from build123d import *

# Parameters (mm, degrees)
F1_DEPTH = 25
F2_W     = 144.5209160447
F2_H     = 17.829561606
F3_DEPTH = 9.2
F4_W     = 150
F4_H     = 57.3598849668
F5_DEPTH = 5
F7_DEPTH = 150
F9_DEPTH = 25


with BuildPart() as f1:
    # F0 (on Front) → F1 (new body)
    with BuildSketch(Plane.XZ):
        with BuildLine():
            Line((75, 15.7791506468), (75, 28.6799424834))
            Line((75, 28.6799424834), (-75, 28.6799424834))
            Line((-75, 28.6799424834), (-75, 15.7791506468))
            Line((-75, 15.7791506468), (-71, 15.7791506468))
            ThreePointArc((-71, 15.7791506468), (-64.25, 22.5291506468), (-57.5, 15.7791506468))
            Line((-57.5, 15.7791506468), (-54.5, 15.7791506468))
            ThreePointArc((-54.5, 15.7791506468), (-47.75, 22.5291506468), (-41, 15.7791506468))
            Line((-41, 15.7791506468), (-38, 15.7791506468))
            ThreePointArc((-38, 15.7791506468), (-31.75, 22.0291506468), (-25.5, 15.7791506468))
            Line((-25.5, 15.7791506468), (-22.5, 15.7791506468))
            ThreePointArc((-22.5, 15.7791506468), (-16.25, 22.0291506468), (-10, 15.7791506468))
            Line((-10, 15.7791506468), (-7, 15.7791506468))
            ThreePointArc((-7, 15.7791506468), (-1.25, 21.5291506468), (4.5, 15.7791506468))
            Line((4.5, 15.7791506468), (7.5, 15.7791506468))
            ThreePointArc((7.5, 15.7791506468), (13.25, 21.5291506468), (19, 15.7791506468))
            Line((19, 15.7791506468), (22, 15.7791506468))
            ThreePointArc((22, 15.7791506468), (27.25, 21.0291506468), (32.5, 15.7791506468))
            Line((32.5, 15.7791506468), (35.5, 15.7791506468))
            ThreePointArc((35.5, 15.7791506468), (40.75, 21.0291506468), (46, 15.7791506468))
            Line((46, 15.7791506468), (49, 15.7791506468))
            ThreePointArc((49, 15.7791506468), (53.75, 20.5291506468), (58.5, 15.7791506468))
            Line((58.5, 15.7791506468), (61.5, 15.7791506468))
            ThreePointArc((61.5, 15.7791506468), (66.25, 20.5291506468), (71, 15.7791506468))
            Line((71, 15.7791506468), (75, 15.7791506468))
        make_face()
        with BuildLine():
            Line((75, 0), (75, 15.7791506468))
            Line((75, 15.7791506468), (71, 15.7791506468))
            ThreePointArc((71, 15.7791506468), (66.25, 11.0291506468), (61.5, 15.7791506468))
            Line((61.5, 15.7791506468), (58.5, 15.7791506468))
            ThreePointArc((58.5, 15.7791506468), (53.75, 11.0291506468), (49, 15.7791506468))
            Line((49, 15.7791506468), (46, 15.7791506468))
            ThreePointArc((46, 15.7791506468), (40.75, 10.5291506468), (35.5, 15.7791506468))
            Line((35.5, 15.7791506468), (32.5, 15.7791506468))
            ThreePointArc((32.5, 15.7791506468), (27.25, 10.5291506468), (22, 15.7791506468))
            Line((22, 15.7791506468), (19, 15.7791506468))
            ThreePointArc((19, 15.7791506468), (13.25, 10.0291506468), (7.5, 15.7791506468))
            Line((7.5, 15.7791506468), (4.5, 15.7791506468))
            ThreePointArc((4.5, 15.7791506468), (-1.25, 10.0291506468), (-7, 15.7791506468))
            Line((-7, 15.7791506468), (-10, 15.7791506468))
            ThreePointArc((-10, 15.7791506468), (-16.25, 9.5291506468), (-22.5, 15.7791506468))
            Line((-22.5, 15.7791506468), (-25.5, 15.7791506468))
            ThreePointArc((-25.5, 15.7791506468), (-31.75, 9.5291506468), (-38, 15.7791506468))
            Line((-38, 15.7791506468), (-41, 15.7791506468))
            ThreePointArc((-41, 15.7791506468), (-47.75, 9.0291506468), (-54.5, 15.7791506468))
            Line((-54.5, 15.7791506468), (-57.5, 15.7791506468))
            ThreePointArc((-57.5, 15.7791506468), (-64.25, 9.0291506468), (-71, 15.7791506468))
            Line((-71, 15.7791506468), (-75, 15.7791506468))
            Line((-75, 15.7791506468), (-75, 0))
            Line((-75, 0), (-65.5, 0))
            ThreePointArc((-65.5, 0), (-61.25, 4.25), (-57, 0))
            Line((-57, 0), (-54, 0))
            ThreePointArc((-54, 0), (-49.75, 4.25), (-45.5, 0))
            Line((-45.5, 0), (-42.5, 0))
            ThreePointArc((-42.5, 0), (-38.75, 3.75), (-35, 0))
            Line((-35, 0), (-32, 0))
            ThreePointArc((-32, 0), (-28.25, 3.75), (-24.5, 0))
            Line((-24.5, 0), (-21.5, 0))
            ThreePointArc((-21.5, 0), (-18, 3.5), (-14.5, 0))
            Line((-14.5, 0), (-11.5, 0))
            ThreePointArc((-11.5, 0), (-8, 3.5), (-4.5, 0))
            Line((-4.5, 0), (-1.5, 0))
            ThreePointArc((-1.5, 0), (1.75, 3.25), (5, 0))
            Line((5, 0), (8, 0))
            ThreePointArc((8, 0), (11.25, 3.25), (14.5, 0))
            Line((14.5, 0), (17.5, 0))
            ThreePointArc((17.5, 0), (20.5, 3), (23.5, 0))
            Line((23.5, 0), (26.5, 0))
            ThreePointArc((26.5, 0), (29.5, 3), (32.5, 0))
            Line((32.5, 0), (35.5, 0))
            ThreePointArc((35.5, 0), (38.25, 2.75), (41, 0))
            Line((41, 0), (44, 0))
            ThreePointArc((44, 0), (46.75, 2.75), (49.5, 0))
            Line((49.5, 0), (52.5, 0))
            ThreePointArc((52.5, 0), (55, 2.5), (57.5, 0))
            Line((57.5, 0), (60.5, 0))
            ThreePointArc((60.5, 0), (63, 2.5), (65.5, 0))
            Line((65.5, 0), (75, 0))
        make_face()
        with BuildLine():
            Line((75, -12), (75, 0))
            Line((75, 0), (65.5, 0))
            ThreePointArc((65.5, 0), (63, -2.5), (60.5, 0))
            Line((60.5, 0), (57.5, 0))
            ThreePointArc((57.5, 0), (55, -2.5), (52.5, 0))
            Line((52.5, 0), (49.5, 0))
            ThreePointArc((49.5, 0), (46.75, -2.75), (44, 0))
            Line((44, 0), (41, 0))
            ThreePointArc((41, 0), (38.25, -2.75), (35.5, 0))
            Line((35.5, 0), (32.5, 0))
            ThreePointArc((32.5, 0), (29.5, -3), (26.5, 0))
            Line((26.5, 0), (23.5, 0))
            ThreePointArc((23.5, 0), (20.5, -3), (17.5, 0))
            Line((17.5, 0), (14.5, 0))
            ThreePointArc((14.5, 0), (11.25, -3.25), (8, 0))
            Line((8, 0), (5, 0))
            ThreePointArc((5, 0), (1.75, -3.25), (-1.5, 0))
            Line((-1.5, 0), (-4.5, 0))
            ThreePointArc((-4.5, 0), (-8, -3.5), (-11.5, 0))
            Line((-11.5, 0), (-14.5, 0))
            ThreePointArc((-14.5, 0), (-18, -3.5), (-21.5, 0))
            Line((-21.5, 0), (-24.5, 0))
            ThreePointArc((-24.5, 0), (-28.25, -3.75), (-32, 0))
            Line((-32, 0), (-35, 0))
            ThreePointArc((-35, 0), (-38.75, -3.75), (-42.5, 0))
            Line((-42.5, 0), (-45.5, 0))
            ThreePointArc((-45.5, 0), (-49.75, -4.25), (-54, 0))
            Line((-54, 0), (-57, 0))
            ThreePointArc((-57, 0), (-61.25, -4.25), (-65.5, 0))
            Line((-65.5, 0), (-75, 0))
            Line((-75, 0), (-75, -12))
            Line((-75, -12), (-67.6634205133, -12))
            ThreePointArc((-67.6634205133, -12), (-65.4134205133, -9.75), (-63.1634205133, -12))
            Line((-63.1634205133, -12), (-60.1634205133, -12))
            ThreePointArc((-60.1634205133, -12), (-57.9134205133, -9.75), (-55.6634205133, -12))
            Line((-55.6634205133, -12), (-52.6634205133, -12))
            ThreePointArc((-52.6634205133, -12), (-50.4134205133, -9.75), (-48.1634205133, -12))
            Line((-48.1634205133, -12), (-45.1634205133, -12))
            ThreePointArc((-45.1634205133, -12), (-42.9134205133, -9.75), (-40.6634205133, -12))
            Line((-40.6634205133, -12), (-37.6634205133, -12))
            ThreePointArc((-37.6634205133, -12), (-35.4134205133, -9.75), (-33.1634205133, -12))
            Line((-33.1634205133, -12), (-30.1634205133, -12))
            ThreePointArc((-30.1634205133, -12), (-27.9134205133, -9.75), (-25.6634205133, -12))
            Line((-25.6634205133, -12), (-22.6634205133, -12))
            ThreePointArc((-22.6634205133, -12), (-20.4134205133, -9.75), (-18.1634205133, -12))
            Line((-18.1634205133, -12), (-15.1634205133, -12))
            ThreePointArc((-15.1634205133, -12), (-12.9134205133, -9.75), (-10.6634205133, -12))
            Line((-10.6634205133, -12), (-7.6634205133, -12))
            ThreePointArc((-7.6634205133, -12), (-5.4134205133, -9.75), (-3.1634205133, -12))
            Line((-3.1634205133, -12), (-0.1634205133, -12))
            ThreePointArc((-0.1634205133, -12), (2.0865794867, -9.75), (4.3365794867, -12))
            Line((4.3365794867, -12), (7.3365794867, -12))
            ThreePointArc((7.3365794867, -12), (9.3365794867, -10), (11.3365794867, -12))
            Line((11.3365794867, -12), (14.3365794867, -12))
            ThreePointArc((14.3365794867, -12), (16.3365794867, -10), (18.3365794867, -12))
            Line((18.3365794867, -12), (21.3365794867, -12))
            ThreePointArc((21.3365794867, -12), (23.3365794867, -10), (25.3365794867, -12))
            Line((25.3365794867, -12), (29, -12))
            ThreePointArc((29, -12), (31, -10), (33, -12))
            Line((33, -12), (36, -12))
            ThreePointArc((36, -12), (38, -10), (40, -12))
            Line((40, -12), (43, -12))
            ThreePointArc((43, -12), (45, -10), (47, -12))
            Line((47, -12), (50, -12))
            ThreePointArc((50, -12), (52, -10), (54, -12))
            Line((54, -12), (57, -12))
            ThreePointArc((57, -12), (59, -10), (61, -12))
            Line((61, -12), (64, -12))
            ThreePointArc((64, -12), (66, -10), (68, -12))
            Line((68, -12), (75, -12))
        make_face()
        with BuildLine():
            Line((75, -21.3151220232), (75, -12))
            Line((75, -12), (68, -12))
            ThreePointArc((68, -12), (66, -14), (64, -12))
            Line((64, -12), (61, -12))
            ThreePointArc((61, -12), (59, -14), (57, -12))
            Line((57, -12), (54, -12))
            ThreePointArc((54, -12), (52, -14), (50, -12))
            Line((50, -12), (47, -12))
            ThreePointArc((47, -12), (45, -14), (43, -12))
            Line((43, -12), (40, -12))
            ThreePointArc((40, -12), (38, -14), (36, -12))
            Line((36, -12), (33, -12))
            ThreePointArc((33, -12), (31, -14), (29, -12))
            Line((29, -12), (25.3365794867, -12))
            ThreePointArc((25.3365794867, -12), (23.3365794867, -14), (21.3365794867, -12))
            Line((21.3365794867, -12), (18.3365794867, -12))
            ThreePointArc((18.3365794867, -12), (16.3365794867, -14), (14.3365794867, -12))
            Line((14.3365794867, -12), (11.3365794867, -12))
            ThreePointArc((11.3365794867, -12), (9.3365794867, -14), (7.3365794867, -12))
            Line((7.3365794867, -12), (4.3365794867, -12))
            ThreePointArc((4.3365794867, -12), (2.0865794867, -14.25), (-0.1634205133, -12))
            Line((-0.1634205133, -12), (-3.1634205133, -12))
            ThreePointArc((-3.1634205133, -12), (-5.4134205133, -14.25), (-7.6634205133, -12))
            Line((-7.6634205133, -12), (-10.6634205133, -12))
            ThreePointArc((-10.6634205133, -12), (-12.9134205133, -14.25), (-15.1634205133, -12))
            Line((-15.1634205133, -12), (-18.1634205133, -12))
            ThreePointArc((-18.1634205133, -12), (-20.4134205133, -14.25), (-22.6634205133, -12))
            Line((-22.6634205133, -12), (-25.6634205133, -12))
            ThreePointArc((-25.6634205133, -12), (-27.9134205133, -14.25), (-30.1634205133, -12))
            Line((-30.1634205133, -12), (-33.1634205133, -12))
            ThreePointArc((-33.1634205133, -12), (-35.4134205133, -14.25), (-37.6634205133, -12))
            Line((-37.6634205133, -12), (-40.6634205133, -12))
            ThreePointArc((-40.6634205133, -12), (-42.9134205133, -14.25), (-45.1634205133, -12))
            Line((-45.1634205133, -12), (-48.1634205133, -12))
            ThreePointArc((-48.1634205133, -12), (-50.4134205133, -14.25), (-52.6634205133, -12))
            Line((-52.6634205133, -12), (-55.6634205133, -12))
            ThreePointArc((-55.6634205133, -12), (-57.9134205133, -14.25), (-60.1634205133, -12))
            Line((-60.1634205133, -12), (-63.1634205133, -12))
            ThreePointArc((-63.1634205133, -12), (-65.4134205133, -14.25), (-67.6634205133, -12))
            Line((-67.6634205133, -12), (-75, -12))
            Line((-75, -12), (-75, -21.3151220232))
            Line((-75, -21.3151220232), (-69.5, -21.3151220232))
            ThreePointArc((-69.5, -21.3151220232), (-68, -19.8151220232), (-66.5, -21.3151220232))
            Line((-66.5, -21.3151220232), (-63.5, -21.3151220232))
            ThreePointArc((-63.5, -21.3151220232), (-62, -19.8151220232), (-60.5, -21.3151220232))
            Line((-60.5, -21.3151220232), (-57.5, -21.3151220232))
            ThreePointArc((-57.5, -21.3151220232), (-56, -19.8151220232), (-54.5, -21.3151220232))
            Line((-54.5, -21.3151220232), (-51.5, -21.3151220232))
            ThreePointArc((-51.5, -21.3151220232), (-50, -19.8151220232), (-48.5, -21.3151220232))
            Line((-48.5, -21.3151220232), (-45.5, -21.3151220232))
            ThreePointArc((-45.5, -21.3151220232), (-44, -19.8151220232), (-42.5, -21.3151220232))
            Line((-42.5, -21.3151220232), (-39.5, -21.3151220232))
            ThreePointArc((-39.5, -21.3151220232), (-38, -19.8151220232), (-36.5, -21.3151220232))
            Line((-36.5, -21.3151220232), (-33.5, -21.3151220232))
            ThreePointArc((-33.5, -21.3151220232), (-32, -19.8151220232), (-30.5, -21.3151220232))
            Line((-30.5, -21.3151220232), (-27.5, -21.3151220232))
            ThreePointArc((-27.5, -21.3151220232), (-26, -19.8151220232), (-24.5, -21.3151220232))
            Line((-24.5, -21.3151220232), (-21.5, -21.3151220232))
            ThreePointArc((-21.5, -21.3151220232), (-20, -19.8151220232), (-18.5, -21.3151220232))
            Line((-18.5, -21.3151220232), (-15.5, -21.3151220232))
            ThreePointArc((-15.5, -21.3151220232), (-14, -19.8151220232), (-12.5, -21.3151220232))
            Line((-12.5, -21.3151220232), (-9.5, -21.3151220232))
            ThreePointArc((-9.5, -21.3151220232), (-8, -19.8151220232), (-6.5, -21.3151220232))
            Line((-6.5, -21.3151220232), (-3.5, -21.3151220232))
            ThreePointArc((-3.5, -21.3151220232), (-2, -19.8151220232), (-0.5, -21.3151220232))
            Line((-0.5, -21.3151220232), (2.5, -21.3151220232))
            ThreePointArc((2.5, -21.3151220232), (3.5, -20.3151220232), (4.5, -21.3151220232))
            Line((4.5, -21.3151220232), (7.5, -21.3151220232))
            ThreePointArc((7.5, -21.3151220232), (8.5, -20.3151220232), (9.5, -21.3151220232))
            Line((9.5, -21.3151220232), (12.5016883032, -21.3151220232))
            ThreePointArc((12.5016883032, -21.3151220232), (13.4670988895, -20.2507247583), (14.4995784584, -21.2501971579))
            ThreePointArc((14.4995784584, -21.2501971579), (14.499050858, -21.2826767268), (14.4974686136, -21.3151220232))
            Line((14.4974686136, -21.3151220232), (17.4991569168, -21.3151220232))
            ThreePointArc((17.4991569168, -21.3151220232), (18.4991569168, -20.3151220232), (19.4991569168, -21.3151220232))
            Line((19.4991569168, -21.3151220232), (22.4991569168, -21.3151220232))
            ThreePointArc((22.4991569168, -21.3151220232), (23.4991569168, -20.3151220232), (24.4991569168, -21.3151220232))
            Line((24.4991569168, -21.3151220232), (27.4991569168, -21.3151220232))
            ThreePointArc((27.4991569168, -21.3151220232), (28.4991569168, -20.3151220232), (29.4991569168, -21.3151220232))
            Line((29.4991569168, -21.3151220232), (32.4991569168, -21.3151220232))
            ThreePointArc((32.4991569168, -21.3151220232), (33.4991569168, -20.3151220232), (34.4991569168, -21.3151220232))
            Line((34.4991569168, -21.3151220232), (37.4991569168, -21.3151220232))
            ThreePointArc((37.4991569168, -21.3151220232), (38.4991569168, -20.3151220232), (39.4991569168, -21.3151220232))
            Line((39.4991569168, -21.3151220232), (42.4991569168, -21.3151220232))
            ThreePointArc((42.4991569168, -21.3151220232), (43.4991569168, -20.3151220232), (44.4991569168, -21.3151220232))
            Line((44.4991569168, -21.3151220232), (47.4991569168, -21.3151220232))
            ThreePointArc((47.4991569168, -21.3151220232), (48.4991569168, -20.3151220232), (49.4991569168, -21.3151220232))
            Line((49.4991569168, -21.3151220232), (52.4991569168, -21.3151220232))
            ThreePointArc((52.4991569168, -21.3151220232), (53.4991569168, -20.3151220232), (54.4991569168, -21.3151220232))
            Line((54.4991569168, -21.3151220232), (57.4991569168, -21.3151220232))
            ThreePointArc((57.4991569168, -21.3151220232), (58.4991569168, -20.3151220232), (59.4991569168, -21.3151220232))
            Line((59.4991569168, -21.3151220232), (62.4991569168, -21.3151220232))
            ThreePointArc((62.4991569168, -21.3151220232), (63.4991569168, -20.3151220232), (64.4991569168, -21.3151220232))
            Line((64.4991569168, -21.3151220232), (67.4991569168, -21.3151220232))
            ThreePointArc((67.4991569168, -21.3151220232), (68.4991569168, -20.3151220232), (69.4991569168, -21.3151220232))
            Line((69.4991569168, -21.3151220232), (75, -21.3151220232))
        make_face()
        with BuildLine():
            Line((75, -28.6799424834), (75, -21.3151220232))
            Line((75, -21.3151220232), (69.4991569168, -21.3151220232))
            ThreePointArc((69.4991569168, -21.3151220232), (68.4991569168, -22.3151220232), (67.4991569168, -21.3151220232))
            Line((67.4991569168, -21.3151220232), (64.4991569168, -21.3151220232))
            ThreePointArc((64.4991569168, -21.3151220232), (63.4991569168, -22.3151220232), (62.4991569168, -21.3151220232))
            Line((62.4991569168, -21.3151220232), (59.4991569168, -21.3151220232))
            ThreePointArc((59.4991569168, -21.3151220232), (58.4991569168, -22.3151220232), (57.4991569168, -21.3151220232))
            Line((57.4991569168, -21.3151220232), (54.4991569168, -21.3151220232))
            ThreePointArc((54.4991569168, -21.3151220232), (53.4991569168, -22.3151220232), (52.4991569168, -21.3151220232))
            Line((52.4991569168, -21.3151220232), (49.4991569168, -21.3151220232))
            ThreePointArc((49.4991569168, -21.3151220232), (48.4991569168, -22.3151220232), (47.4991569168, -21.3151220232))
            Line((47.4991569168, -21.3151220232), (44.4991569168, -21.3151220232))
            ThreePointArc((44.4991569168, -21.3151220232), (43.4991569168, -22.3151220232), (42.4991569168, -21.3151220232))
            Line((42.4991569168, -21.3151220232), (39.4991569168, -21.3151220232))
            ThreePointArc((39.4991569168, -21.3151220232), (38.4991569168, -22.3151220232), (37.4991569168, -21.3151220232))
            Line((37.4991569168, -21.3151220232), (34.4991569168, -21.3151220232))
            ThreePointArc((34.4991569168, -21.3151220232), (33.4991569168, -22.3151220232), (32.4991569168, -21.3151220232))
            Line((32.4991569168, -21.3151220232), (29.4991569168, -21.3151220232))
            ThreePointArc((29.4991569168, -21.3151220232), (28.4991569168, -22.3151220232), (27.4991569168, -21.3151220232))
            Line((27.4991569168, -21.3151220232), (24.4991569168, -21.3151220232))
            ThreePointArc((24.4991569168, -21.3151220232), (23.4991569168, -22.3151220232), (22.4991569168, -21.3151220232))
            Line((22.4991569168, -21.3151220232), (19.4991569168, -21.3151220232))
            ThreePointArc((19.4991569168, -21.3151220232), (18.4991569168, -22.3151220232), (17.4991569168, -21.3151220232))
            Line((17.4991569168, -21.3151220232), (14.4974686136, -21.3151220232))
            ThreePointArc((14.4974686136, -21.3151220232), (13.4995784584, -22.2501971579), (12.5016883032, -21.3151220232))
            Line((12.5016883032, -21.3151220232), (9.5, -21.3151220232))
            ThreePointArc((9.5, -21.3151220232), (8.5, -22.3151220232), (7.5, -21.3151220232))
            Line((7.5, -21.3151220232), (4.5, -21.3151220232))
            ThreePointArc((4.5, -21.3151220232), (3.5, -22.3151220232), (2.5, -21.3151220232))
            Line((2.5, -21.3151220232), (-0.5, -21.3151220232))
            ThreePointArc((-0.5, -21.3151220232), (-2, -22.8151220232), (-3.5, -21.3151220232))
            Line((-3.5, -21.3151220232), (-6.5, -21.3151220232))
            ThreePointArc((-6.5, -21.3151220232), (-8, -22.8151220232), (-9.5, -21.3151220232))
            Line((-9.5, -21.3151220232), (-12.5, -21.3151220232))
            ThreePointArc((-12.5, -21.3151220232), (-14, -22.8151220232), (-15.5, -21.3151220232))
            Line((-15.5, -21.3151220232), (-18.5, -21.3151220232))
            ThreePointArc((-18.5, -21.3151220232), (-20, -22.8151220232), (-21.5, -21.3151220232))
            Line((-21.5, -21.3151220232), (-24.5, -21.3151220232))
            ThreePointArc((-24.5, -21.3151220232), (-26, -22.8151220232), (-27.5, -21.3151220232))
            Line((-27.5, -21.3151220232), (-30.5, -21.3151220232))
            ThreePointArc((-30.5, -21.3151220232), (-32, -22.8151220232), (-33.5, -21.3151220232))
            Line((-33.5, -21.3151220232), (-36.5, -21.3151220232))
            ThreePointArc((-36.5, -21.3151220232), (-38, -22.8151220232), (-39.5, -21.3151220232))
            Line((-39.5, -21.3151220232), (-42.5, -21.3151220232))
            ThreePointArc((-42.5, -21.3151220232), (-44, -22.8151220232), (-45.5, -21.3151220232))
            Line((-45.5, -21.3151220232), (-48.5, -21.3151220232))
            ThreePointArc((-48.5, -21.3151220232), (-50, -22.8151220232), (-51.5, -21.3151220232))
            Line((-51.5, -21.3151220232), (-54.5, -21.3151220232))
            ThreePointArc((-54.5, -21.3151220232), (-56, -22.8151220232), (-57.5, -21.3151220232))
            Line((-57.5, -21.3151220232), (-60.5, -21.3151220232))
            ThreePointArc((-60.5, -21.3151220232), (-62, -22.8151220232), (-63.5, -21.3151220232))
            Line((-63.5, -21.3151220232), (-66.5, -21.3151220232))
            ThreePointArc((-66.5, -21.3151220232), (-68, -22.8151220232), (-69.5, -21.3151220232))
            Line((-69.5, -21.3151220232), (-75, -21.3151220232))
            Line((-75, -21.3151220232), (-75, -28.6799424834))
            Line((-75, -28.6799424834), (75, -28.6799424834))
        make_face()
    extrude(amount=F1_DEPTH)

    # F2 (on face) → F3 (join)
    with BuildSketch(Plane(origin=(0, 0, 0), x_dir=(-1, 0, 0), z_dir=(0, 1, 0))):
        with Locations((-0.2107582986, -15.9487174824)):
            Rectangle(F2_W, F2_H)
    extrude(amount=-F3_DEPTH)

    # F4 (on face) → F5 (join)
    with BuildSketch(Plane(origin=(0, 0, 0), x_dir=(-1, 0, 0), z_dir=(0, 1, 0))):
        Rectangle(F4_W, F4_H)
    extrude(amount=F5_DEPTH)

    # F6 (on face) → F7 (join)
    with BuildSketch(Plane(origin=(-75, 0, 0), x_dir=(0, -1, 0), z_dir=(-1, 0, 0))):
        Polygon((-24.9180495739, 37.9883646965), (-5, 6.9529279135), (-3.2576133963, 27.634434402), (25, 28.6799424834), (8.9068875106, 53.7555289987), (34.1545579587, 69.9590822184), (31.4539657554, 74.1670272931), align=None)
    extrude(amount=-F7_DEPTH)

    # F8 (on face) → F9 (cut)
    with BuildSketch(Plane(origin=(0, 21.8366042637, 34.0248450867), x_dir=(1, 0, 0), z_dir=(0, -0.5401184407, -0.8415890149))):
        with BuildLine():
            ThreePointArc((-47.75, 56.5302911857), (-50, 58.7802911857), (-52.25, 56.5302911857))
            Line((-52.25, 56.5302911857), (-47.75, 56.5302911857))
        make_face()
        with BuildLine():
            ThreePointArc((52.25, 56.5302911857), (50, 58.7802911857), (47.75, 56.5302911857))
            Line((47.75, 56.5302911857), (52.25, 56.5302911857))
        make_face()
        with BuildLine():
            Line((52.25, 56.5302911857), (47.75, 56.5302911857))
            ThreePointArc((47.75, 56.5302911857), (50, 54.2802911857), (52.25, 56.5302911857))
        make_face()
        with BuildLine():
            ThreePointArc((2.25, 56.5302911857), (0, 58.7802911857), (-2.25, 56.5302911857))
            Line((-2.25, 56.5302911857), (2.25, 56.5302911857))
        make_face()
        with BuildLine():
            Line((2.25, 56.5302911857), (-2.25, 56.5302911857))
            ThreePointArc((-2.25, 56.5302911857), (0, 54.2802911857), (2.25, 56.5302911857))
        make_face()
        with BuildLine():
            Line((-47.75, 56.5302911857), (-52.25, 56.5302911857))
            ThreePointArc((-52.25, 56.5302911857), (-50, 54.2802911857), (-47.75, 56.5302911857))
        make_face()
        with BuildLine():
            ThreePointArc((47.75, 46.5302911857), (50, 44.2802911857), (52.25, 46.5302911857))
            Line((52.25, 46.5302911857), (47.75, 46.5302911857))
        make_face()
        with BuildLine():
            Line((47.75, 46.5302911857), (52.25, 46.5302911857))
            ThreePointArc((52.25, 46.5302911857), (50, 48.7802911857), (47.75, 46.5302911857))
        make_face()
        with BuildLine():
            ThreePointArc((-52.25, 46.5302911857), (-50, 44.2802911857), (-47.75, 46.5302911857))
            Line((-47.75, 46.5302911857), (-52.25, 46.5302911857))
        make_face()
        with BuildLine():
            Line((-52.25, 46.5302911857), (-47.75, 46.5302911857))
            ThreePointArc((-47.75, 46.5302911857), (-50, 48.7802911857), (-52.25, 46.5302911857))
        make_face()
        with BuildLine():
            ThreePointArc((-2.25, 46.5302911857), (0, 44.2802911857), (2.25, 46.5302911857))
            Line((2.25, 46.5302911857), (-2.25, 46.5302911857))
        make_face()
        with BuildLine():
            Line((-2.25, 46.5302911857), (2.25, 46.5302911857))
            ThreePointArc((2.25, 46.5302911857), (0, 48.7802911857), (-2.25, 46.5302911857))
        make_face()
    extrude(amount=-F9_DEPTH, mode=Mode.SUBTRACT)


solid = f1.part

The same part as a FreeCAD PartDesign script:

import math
import FreeCAD as App
import Part
import Sketcher
Q = App.Units.Quantity

doc = App.newDocument("Part")
params = doc.addObject("Spreadsheet::Sheet", "Params")
for row, (alias, value) in enumerate([
    ("sketch1_diameter", "3 mm"),
    ("sketch1_diameter2", "2 mm"),
    ("sketch1_diameter3", "4 mm"),
    ("sketch1_diameter4", "7 mm"),
    ("sketch1_diameter5", "6 mm"),
    ("pad1_length", "25 mm"),
    ("pad2_length", "9.2 mm"),
    ("sketch3_width", "150 mm"),
    ("pad3_length", "5 mm"),
    ("sketch4_length", "30 mm"),
    ("sketch4_length2", "5 mm"),
    ("pad4_length", "150 mm"),
    ("sketch5_diameter", "4.5 mm"),
    ("pocket1_length", "25 mm"),
], start=1):
    params.set(f"A{row}", alias)
    params.set(f"B{row}", "=" + value)
    params.setAlias(f"B{row}", alias)

body = doc.addObject("PartDesign::Body", "Body")

sketch1 = body.newObject("Sketcher::SketchObject", "Sketch")
sketch1.AttachmentSupport = (doc.getObject("XZ_Plane"), [""])
sketch1.MapMode = "FlatFace"
sketch1.addGeometry([
    Part.LineSegment(App.Vector(75, 28.679942, 0), App.Vector(-75, 28.679942, 0)),
    Part.LineSegment(App.Vector(-75, 28.679942, 0), App.Vector(-75, -28.679942, 0)),
    Part.LineSegment(App.Vector(-75, -28.679942, 0), App.Vector(75, -28.679942, 0)),
    Part.LineSegment(App.Vector(75, -28.679942, 0), App.Vector(75, 28.679942, 0)),
    Part.Circle(App.Vector(-68, -21.315122, 0), App.Vector(0, 0, 1), 1.5),
    Part.Circle(App.Vector(-62, -21.315122, 0), App.Vector(0, 0, 1), 1.5),
    Part.Circle(App.Vector(-56, -21.315122, 0), App.Vector(0, 0, 1), 1.5),
    Part.Circle(App.Vector(-50, -21.315122, 0), App.Vector(0, 0, 1), 1.5),
    Part.Circle(App.Vector(-44, -21.315122, 0), App.Vector(0, 0, 1), 1.5),
    Part.Circle(App.Vector(-38, -21.315122, 0), App.Vector(0, 0, 1), 1.5),
    Part.Circle(App.Vector(-32, -21.315122, 0), App.Vector(0, 0, 1), 1.5),
    Part.Circle(App.Vector(-26, -21.315122, 0), App.Vector(0, 0, 1), 1.5),
    Part.Circle(App.Vector(-20, -21.315122, 0), App.Vector(0, 0, 1), 1.5),
    Part.Circle(App.Vector(-14, -21.315122, 0), App.Vector(0, 0, 1), 1.5),
    Part.Circle(App.Vector(-8, -21.315122, 0), App.Vector(0, 0, 1), 1.5),
    Part.Circle(App.Vector(-2, -21.315122, 0), App.Vector(0, 0, 1), 1.5),
    Part.Circle(App.Vector(3.5, -21.315122, 0), App.Vector(0, 0, 1), 1),
    Part.Circle(App.Vector(8.5, -21.315122, 0), App.Vector(0, 0, 1), 1),
    Part.ArcOfCircle(Part.Circle(App.Vector(13.499578, -21.250197, 0), App.Vector(0, 0, 1), 1), math.radians(0), math.radians(183.722539)),
    Part.ArcOfCircle(Part.Circle(App.Vector(13.499578, -21.250197, 0), App.Vector(0, 0, 1), 1), math.radians(-3.722539), math.radians(0)),
    Part.ArcOfCircle(Part.Circle(App.Vector(13.499578, -21.250197, 0), App.Vector(0, 0, 1), 1), math.radians(-176.277461), math.radians(-3.722539)),
    Part.Circle(App.Vector(18.499157, -21.315122, 0), App.Vector(0, 0, 1), 1),
    Part.Circle(App.Vector(23.499157, -21.315122, 0), App.Vector(0, 0, 1), 1),
    Part.Circle(App.Vector(28.499157, -21.315122, 0), App.Vector(0, 0, 1), 1),
    Part.Circle(App.Vector(33.499157, -21.315122, 0), App.Vector(0, 0, 1), 1),
    Part.Circle(App.Vector(38.499157, -21.315122, 0), App.Vector(0, 0, 1), 1),
    Part.Circle(App.Vector(43.499157, -21.315122, 0), App.Vector(0, 0, 1), 1),
    Part.Circle(App.Vector(48.499157, -21.315122, 0), App.Vector(0, 0, 1), 1),
    Part.Circle(App.Vector(53.499157, -21.315122, 0), App.Vector(0, 0, 1), 1),
    Part.Circle(App.Vector(58.499157, -21.315122, 0), App.Vector(0, 0, 1), 1),
    Part.Circle(App.Vector(63.499157, -21.315122, 0), App.Vector(0, 0, 1), 1),
    Part.Circle(App.Vector(68.499157, -21.315122, 0), App.Vector(0, 0, 1), 1),
    Part.Circle(App.Vector(-65.413421, -12, 0), App.Vector(0, 0, 1), 2.25),
    Part.Circle(App.Vector(-57.913421, -12, 0), App.Vector(0, 0, 1), 2.25),
    Part.Circle(App.Vector(-50.413421, -12, 0), App.Vector(0, 0, 1), 2.25),
    Part.Circle(App.Vector(-42.913421, -12, 0), App.Vector(0, 0, 1), 2.25),
    Part.Circle(App.Vector(-35.413421, -12, 0), App.Vector(0, 0, 1), 2.25),
    Part.Circle(App.Vector(-27.913421, -12, 0), App.Vector(0, 0, 1), 2.25),
    Part.Circle(App.Vector(-20.413421, -12, 0), App.Vector(0, 0, 1), 2.25),
    Part.Circle(App.Vector(-12.913421, -12, 0), App.Vector(0, 0, 1), 2.25),
    Part.Circle(App.Vector(-5.413421, -12, 0), App.Vector(0, 0, 1), 2.25),
    Part.Circle(App.Vector(2.086579, -12, 0), App.Vector(0, 0, 1), 2.25),
    Part.Circle(App.Vector(9.336579, -12, 0), App.Vector(0, 0, 1), 2),
    Part.Circle(App.Vector(16.336579, -12, 0), App.Vector(0, 0, 1), 2),
    Part.Circle(App.Vector(23.336579, -12, 0), App.Vector(0, 0, 1), 2),
    Part.Circle(App.Vector(31, -12, 0), App.Vector(0, 0, 1), 2),
    Part.Circle(App.Vector(38, -12, 0), App.Vector(0, 0, 1), 2),
    Part.Circle(App.Vector(45, -12, 0), App.Vector(0, 0, 1), 2),
    Part.Circle(App.Vector(52, -12, 0), App.Vector(0, 0, 1), 2),
    Part.Circle(App.Vector(59, -12, 0), App.Vector(0, 0, 1), 2),
    Part.Circle(App.Vector(66, -12, 0), App.Vector(0, 0, 1), 2),
    Part.Circle(App.Vector(-61.25, 0, 0), App.Vector(0, 0, 1), 4.25),
    Part.Circle(App.Vector(-49.75, 0, 0), App.Vector(0, 0, 1), 4.25),
    Part.Circle(App.Vector(-38.75, 0, 0), App.Vector(0, 0, 1), 3.75),
    Part.Circle(App.Vector(-28.25, 0, 0), App.Vector(0, 0, 1), 3.75),
    Part.Circle(App.Vector(-18, 0, 0), App.Vector(0, 0, 1), 3.5),
    Part.Circle(App.Vector(-8, 0, 0), App.Vector(0, 0, 1), 3.5),
    Part.Circle(App.Vector(1.75, 0, 0), App.Vector(0, 0, 1), 3.25),
    Part.Circle(App.Vector(11.25, 0, 0), App.Vector(0, 0, 1), 3.25),
    Part.Circle(App.Vector(20.5, 0, 0), App.Vector(0, 0, 1), 3),
    Part.Circle(App.Vector(29.5, 0, 0), App.Vector(0, 0, 1), 3),
    Part.Circle(App.Vector(38.25, 0, 0), App.Vector(0, 0, 1), 2.75),
    Part.Circle(App.Vector(46.75, 0, 0), App.Vector(0, 0, 1), 2.75),
    Part.Circle(App.Vector(55, 0, 0), App.Vector(0, 0, 1), 2.5),
    Part.Circle(App.Vector(63, 0, 0), App.Vector(0, 0, 1), 2.5),
    Part.Circle(App.Vector(-64.25, 15.779151, 0), App.Vector(0, 0, 1), 6.75),
    Part.Circle(App.Vector(-47.75, 15.779151, 0), App.Vector(0, 0, 1), 6.75),
    Part.Circle(App.Vector(-31.75, 15.779151, 0), App.Vector(0, 0, 1), 6.25),
    Part.Circle(App.Vector(-16.25, 15.779151, 0), App.Vector(0, 0, 1), 6.25),
    Part.Circle(App.Vector(-1.25, 15.779151, 0), App.Vector(0, 0, 1), 5.75),
    Part.Circle(App.Vector(13.25, 15.779151, 0), App.Vector(0, 0, 1), 5.75),
    Part.Circle(App.Vector(27.25, 15.779151, 0), App.Vector(0, 0, 1), 5.25),
    Part.Circle(App.Vector(40.75, 15.779151, 0), App.Vector(0, 0, 1), 5.25),
    Part.Circle(App.Vector(53.75, 15.779151, 0), App.Vector(0, 0, 1), 4.75),
    Part.Circle(App.Vector(66.25, 15.779151, 0), App.Vector(0, 0, 1), 4.75),
], False)
sketch1.addConstraint([
    Sketcher.Constraint("Coincident", 0, 2, 1, 1),
    Sketcher.Constraint("Coincident", 1, 2, 2, 1),
    Sketcher.Constraint("Coincident", 2, 2, 3, 1),
    Sketcher.Constraint("Coincident", 3, 2, 0, 1),
    Sketcher.Constraint("Tangent", 18, 1, 19, 2),
    Sketcher.Constraint("Tangent", 19, 1, 20, 2),
    Sketcher.Constraint("Tangent", 20, 1, 18, 2),
    Sketcher.Constraint("Horizontal", 0),
    Sketcher.Constraint("Vertical", 1),
    Sketcher.Constraint("Horizontal", 2),
    Sketcher.Constraint("Vertical", 3),
    Sketcher.Constraint("Equal", 4, 5),
    Sketcher.Constraint("Equal", 5, 6),
    Sketcher.Constraint("Equal", 6, 7),
    Sketcher.Constraint("Equal", 7, 8),
    Sketcher.Constraint("Equal", 8, 9),
    Sketcher.Constraint("Equal", 9, 10),
    Sketcher.Constraint("Equal", 10, 11),
    Sketcher.Constraint("Equal", 11, 12),
    Sketcher.Constraint("Equal", 12, 13),
    Sketcher.Constraint("Equal", 13, 14),
    Sketcher.Constraint("Equal", 14, 15),
    Sketcher.Constraint("Equal", 16, 17),
    Sketcher.Constraint("Equal", 17, 18),
    Sketcher.Constraint("Equal", 20, 21),
    Sketcher.Constraint("Equal", 21, 22),
    Sketcher.Constraint("Equal", 22, 23),
    Sketcher.Constraint("Equal", 23, 24),
    Sketcher.Constraint("Equal", 24, 25),
    Sketcher.Constraint("Equal", 25, 26),
    Sketcher.Constraint("Equal", 26, 27),
    Sketcher.Constraint("Equal", 27, 28),
    Sketcher.Constraint("Equal", 28, 29),
    Sketcher.Constraint("Equal", 29, 30),
    Sketcher.Constraint("Equal", 30, 31),
    Sketcher.Constraint("Equal", 32, 33),
    Sketcher.Constraint("Equal", 33, 34),
    Sketcher.Constraint("Equal", 34, 35),
    Sketcher.Constraint("Equal", 35, 36),
    Sketcher.Constraint("Equal", 36, 37),
    Sketcher.Constraint("Equal", 37, 38),
    Sketcher.Constraint("Equal", 38, 39),
    Sketcher.Constraint("Equal", 39, 40),
    Sketcher.Constraint("Equal", 40, 41),
    Sketcher.Constraint("Equal", 42, 43),
    Sketcher.Constraint("Equal", 43, 44),
    Sketcher.Constraint("Equal", 44, 45),
    Sketcher.Constraint("Equal", 45, 46),
    Sketcher.Constraint("Equal", 46, 47),
    Sketcher.Constraint("Equal", 47, 48),
    Sketcher.Constraint("Equal", 48, 49),
    Sketcher.Constraint("Equal", 49, 50),
    Sketcher.Constraint("Equal", 51, 52),
    Sketcher.Constraint("Equal", 53, 54),
    Sketcher.Constraint("Equal", 55, 56),
    Sketcher.Constraint("Equal", 57, 58),
    Sketcher.Constraint("Equal", 59, 60),
    Sketcher.Constraint("Equal", 61, 62),
    Sketcher.Constraint("Equal", 63, 64),
    Sketcher.Constraint("Equal", 65, 66),
    Sketcher.Constraint("Equal", 67, 68),
    Sketcher.Constraint("Equal", 69, 70),
    Sketcher.Constraint("Equal", 71, 72),
    Sketcher.Constraint("Equal", 73, 74),
    Sketcher.Constraint("Symmetric", 0, 2, 2, 2, -1, 1),
    Sketcher.Constraint("PointOnObject", 51, 3, -1),
    Sketcher.Constraint("PointOnObject", 52, 3, -1),
    Sketcher.Constraint("PointOnObject", 53, 3, -1),
    Sketcher.Constraint("PointOnObject", 54, 3, -1),
    Sketcher.Constraint("PointOnObject", 55, 3, -1),
    Sketcher.Constraint("PointOnObject", 56, 3, -1),
    Sketcher.Constraint("PointOnObject", 57, 3, -1),
    Sketcher.Constraint("PointOnObject", 58, 3, -1),
    Sketcher.Constraint("PointOnObject", 59, 3, -1),
    Sketcher.Constraint("PointOnObject", 60, 3, -1),
    Sketcher.Constraint("PointOnObject", 61, 3, -1),
    Sketcher.Constraint("PointOnObject", 62, 3, -1),
    Sketcher.Constraint("PointOnObject", 63, 3, -1),
    Sketcher.Constraint("PointOnObject", 64, 3, -1),
    Sketcher.Constraint("Horizontal", 4, 3, 5, 3),
    Sketcher.Constraint("Horizontal", 5, 3, 6, 3),
    Sketcher.Constraint("Horizontal", 6, 3, 7, 3),
    Sketcher.Constraint("Horizontal", 7, 3, 8, 3),
    Sketcher.Constraint("Horizontal", 8, 3, 9, 3),
    Sketcher.Constraint("Horizontal", 9, 3, 10, 3),
    Sketcher.Constraint("Horizontal", 10, 3, 11, 3),
    Sketcher.Constraint("Horizontal", 11, 3, 12, 3),
    Sketcher.Constraint("Horizontal", 12, 3, 13, 3),
    Sketcher.Constraint("Horizontal", 13, 3, 14, 3),
    Sketcher.Constraint("Horizontal", 14, 3, 15, 3),
    Sketcher.Constraint("Horizontal", 15, 3, 16, 3),
    Sketcher.Constraint("Horizontal", 16, 3, 17, 3),
    Sketcher.Constraint("Horizontal", 17, 3, 21, 3),
    Sketcher.Constraint("Horizontal", 21, 3, 22, 3),
    Sketcher.Constraint("Horizontal", 22, 3, 23, 3),
    Sketcher.Constraint("Horizontal", 23, 3, 24, 3),
    Sketcher.Constraint("Horizontal", 24, 3, 25, 3),
    Sketcher.Constraint("Horizontal", 25, 3, 26, 3),
    Sketcher.Constraint("Horizontal", 26, 3, 27, 3),
    Sketcher.Constraint("Horizontal", 27, 3, 28, 3),
    Sketcher.Constraint("Horizontal", 28, 3, 29, 3),
    Sketcher.Constraint("Horizontal", 29, 3, 30, 3),
    Sketcher.Constraint("Horizontal", 30, 3, 31, 3),
    Sketcher.Constraint("Horizontal", 32, 3, 33, 3),
    Sketcher.Constraint("Horizontal", 33, 3, 34, 3),
    Sketcher.Constraint("Horizontal", 34, 3, 35, 3),
    Sketcher.Constraint("Horizontal", 35, 3, 36, 3),
    Sketcher.Constraint("Horizontal", 36, 3, 37, 3),
    Sketcher.Constraint("Horizontal", 37, 3, 38, 3),
    Sketcher.Constraint("Horizontal", 38, 3, 39, 3),
    Sketcher.Constraint("Horizontal", 39, 3, 40, 3),
    Sketcher.Constraint("Horizontal", 40, 3, 41, 3),
    Sketcher.Constraint("Horizontal", 41, 3, 42, 3),
    Sketcher.Constraint("Horizontal", 42, 3, 43, 3),
    Sketcher.Constraint("Horizontal", 43, 3, 44, 3),
    Sketcher.Constraint("Horizontal", 44, 3, 45, 3),
    Sketcher.Constraint("Horizontal", 45, 3, 46, 3),
    Sketcher.Constraint("Horizontal", 46, 3, 47, 3),
    Sketcher.Constraint("Horizontal", 47, 3, 48, 3),
    Sketcher.Constraint("Horizontal", 48, 3, 49, 3),
    Sketcher.Constraint("Horizontal", 49, 3, 50, 3),
    Sketcher.Constraint("Horizontal", 65, 3, 66, 3),
    Sketcher.Constraint("Horizontal", 66, 3, 67, 3),
    Sketcher.Constraint("Horizontal", 67, 3, 68, 3),
    Sketcher.Constraint("Horizontal", 68, 3, 69, 3),
    Sketcher.Constraint("Horizontal", 69, 3, 70, 3),
    Sketcher.Constraint("Horizontal", 70, 3, 71, 3),
    Sketcher.Constraint("Horizontal", 71, 3, 72, 3),
    Sketcher.Constraint("Horizontal", 72, 3, 73, 3),
    Sketcher.Constraint("Horizontal", 73, 3, 74, 3),
    Sketcher.Constraint("Horizontal", 20, 3, 18, 1),
    Sketcher.Constraint("Horizontal", 31, 3, 19, 1),
    Sketcher.Constraint("Horizontal", 19, 1, 20, 1),
    Sketcher.Constraint("Vertical", 14, 3, 56, 3),
    Sketcher.Constraint("Diameter", 4, Q("3 mm")),
    Sketcher.Constraint("Diameter", 16, Q("2 mm")),
    Sketcher.Constraint("Diameter", 42, Q("4 mm")),
    Sketcher.Constraint("Diameter", 55, Q("7 mm")),
    Sketcher.Constraint("Diameter", 59, Q("6 mm")),
    Sketcher.Constraint("Diameter", 63, Q("5 mm")),
    Sketcher.Constraint("Diameter", 32, Q("4.5 mm")),
    Sketcher.Constraint("Diameter", 51, Q("8.5 mm")),
    Sketcher.Constraint("Diameter", 53, Q("7.5 mm")),
    Sketcher.Constraint("Diameter", 57, Q("6.5 mm")),
    Sketcher.Constraint("Diameter", 61, Q("5.5 mm")),
    Sketcher.Constraint("Diameter", 65, Q("13.5 mm")),
    Sketcher.Constraint("Diameter", 67, Q("12.5 mm")),
    Sketcher.Constraint("Diameter", 69, Q("11.5 mm")),
    Sketcher.Constraint("Diameter", 71, Q("10.5 mm")),
    Sketcher.Constraint("Diameter", 73, Q("9.5 mm")),
    Sketcher.Constraint("DistanceX", 0, 2, 0, 1, Q("150 mm")),
    Sketcher.Constraint("DistanceX", 4, 3, -1, 1, Q("68 mm")),
    Sketcher.Constraint("DistanceX", 5, 3, -1, 1, Q("62 mm")),
    Sketcher.Constraint("DistanceX", 6, 3, -1, 1, Q("56 mm")),
    Sketcher.Constraint("DistanceX", 7, 3, -1, 1, Q("50 mm")),
    Sketcher.Constraint("DistanceX", 8, 3, -1, 1, Q("44 mm")),
    Sketcher.Constraint("DistanceX", 9, 3, -1, 1, Q("38 mm")),
    Sketcher.Constraint("DistanceX", 10, 3, -1, 1, Q("32 mm")),
    Sketcher.Constraint("DistanceX", 11, 3, -1, 1, Q("26 mm")),
    Sketcher.Constraint("DistanceX", 12, 3, -1, 1, Q("20 mm")),
    Sketcher.Constraint("DistanceX", 13, 3, -1, 1, Q("14 mm")),
    Sketcher.Constraint("DistanceX", 14, 3, -1, 1, Q("8 mm")),
    Sketcher.Constraint("DistanceX", 15, 3, -1, 1, Q("2 mm")),
    Sketcher.Constraint("DistanceY", 32, 3, -1, 1, Q("12 mm")),
    Sketcher.Constraint("DistanceX", -1, 1, 45, 3, Q("31 mm")),
    Sketcher.Constraint("DistanceX", -1, 1, 46, 3, Q("38 mm")),
    Sketcher.Constraint("DistanceX", -1, 1, 47, 3, Q("45 mm")),
    Sketcher.Constraint("DistanceX", -1, 1, 48, 3, Q("52 mm")),
    Sketcher.Constraint("DistanceX", -1, 1, 49, 3, Q("59 mm")),
    Sketcher.Constraint("DistanceX", -1, 1, 50, 3, Q("66 mm")),
    Sketcher.Constraint("DistanceX", 55, 3, -1, 1, Q("18 mm")),
    Sketcher.Constraint("DistanceX", -1, 1, 63, 3, Q("55 mm")),
    Sketcher.Constraint("DistanceX", -1, 1, 64, 3, Q("63 mm")),
    Sketcher.Constraint("DistanceX", -1, 1, 16, 3, Q("3.5 mm")),
    Sketcher.Constraint("DistanceX", -1, 1, 17, 3, Q("8.5 mm")),
    Sketcher.Constraint("DistanceX", -1, 1, 59, 3, Q("20.5 mm")),
    Sketcher.Constraint("DistanceX", -1, 1, 60, 3, Q("29.5 mm")),
    Sketcher.Constraint("DistanceX", 51, 3, -1, 1, Q("61.25 mm")),
    Sketcher.Constraint("DistanceX", 52, 3, -1, 1, Q("49.75 mm")),
    Sketcher.Constraint("DistanceX", 53, 3, -1, 1, Q("38.75 mm")),
    Sketcher.Constraint("DistanceX", 54, 3, -1, 1, Q("28.25 mm")),
    Sketcher.Constraint("DistanceX", -1, 1, 57, 3, Q("1.75 mm")),
    Sketcher.Constraint("DistanceX", -1, 1, 58, 3, Q("11.25 mm")),
    Sketcher.Constraint("DistanceX", -1, 1, 61, 3, Q("38.25 mm")),
    Sketcher.Constraint("DistanceX", -1, 1, 62, 3, Q("46.75 mm")),
    Sketcher.Constraint("DistanceX", 65, 3, -1, 1, Q("64.25 mm")),
    Sketcher.Constraint("DistanceX", 66, 3, -1, 1, Q("47.75 mm")),
    Sketcher.Constraint("DistanceX", 67, 3, -1, 1, Q("31.75 mm")),
    Sketcher.Constraint("DistanceX", 68, 3, -1, 1, Q("16.25 mm")),
    Sketcher.Constraint("DistanceX", 69, 3, -1, 1, Q("1.25 mm")),
    Sketcher.Constraint("DistanceX", -1, 1, 70, 3, Q("13.25 mm")),
    Sketcher.Constraint("DistanceX", -1, 1, 71, 3, Q("27.25 mm")),
    Sketcher.Constraint("DistanceX", -1, 1, 72, 3, Q("40.75 mm")),
    Sketcher.Constraint("DistanceX", -1, 1, 73, 3, Q("53.75 mm")),
    Sketcher.Constraint("DistanceX", -1, 1, 74, 3, Q("66.25 mm")),
    Sketcher.Constraint("DistanceY", 1, 2, 1, 1, Q("57.359885 mm")),
    Sketcher.Constraint("DistanceX", -1, 1, 18, 3, Q("13.499578 mm")),
    Sketcher.Constraint("DistanceX", 32, 3, -1, 1, Q("65.413421 mm")),
    Sketcher.Constraint("DistanceX", 33, 3, -1, 1, Q("57.913421 mm")),
    Sketcher.Constraint("DistanceX", 34, 3, -1, 1, Q("50.413421 mm")),
    Sketcher.Constraint("DistanceX", 35, 3, -1, 1, Q("42.913421 mm")),
    Sketcher.Constraint("DistanceX", 36, 3, -1, 1, Q("35.413421 mm")),
    Sketcher.Constraint("DistanceX", 37, 3, -1, 1, Q("27.913421 mm")),
    Sketcher.Constraint("DistanceX", 38, 3, -1, 1, Q("20.413421 mm")),
    Sketcher.Constraint("DistanceX", 39, 3, -1, 1, Q("12.913421 mm")),
    Sketcher.Constraint("DistanceX", 40, 3, -1, 1, Q("5.413421 mm")),
    Sketcher.Constraint("DistanceX", -1, 1, 41, 3, Q("2.086579 mm")),
    Sketcher.Constraint("DistanceX", -1, 1, 42, 3, Q("9.336579 mm")),
    Sketcher.Constraint("DistanceX", -1, 1, 43, 3, Q("16.336579 mm")),
    Sketcher.Constraint("DistanceX", -1, 1, 44, 3, Q("23.336579 mm")),
    Sketcher.Constraint("DistanceY", -1, 1, 65, 3, Q("15.779151 mm")),
    Sketcher.Constraint("DistanceX", -1, 1, 19, 1, Q("14.497469 mm")),
    Sketcher.Constraint("DistanceY", 4, 3, -1, 1, Q("21.315122 mm")),
    Sketcher.Constraint("DistanceX", -1, 1, 21, 3, Q("18.499157 mm")),
    Sketcher.Constraint("DistanceX", -1, 1, 22, 3, Q("23.499157 mm")),
    Sketcher.Constraint("DistanceX", -1, 1, 23, 3, Q("28.499157 mm")),
    Sketcher.Constraint("DistanceX", -1, 1, 24, 3, Q("33.499157 mm")),
    Sketcher.Constraint("DistanceX", -1, 1, 25, 3, Q("38.499157 mm")),
    Sketcher.Constraint("DistanceX", -1, 1, 26, 3, Q("43.499157 mm")),
    Sketcher.Constraint("DistanceX", -1, 1, 27, 3, Q("48.499157 mm")),
    Sketcher.Constraint("DistanceX", -1, 1, 28, 3, Q("53.499157 mm")),
    Sketcher.Constraint("DistanceX", -1, 1, 29, 3, Q("58.499157 mm")),
    Sketcher.Constraint("DistanceX", -1, 1, 30, 3, Q("63.499157 mm")),
    Sketcher.Constraint("DistanceX", -1, 1, 31, 3, Q("68.499157 mm")),
])
sketch1.setExpression("Constraints[134]", "Params.sketch1_diameter")
sketch1.setExpression("Constraints[135]", "Params.sketch1_diameter2")
sketch1.setExpression("Constraints[136]", "Params.sketch1_diameter3")
sketch1.setExpression("Constraints[137]", "Params.sketch1_diameter4")
sketch1.setExpression("Constraints[138]", "Params.sketch1_diameter5")
pad1 = body.newObject("PartDesign::Pad", "Pad")
pad1.Profile = sketch1
pad1.setExpression("Length", "Params.pad1_length")

sketch2 = body.newObject("Sketcher::SketchObject", "Sketch001")
sketch2.AttachmentSupport = (doc.getObject("XZ_Plane"), [""])
sketch2.MapMode = "FlatFace"
sketch2.addGeometry([
    Part.LineSegment(App.Vector(72.471216, -7.033937, 0), App.Vector(72.471216, -24.863498, 0)),
    Part.LineSegment(App.Vector(72.471216, -24.863498, 0), App.Vector(-72.0497, -24.863498, 0)),
    Part.LineSegment(App.Vector(-72.0497, -24.863498, 0), App.Vector(-72.0497, -7.033937, 0)),
    Part.LineSegment(App.Vector(-72.0497, -7.033937, 0), App.Vector(72.471216, -7.033937, 0)),
], False)
sketch2.addConstraint([
    Sketcher.Constraint("Coincident", 0, 2, 1, 1),
    Sketcher.Constraint("Coincident", 1, 2, 2, 1),
    Sketcher.Constraint("Coincident", 2, 2, 3, 1),
    Sketcher.Constraint("Coincident", 3, 2, 0, 1),
    Sketcher.Constraint("Vertical", 0),
    Sketcher.Constraint("Horizontal", 1),
    Sketcher.Constraint("Vertical", 2),
    Sketcher.Constraint("Horizontal", 3),
    Sketcher.Constraint("DistanceY", 0, 2, 0, 1, Q("17.829562 mm")),
    Sketcher.Constraint("DistanceY", 0, 2, -1, 1, Q("24.863498 mm")),
    Sketcher.Constraint("DistanceX", 1, 2, -1, 1, Q("72.0497 mm")),
    Sketcher.Constraint("DistanceX", 1, 2, 1, 1, Q("144.520916 mm")),
])
pad2 = body.newObject("PartDesign::Pad", "Pad001")
pad2.Profile = sketch2
pad2.setExpression("Length", "Params.pad2_length")

sketch3 = body.newObject("Sketcher::SketchObject", "Sketch002")
sketch3.AttachmentSupport = (doc.getObject("XZ_Plane"), [""])
sketch3.MapMode = "FlatFace"
sketch3.addGeometry([
    Part.LineSegment(App.Vector(75, 28.679942, 0), App.Vector(75, -28.679942, 0)),
    Part.LineSegment(App.Vector(75, -28.679942, 0), App.Vector(-75, -28.679942, 0)),
    Part.LineSegment(App.Vector(-75, -28.679942, 0), App.Vector(-75, 28.679942, 0)),
    Part.LineSegment(App.Vector(-75, 28.679942, 0), App.Vector(75, 28.679942, 0)),
], False)
sketch3.addConstraint([
    Sketcher.Constraint("Coincident", 0, 2, 1, 1),
    Sketcher.Constraint("Coincident", 1, 2, 2, 1),
    Sketcher.Constraint("Coincident", 2, 2, 3, 1),
    Sketcher.Constraint("Coincident", 3, 2, 0, 1),
    Sketcher.Constraint("Vertical", 0),
    Sketcher.Constraint("Horizontal", 1),
    Sketcher.Constraint("Vertical", 2),
    Sketcher.Constraint("Horizontal", 3),
    Sketcher.Constraint("Symmetric", 0, 2, 2, 2, -1, 1),
    Sketcher.Constraint("DistanceX", 1, 2, 1, 1, Q("150 mm")),
    Sketcher.Constraint("DistanceY", 0, 2, 0, 1, Q("57.359885 mm")),
])
sketch3.setExpression("Constraints[9]", "Params.sketch3_width")
pad3 = body.newObject("PartDesign::Pad", "Pad002")
pad3.Profile = sketch3
pad3.setExpression("Length", "Params.pad3_length")
pad3.Reversed = True

sketch4 = body.newObject("Sketcher::SketchObject", "Sketch003")
sketch4.AttachmentSupport = (doc.getObject("YZ_Plane"), [""])
sketch4.MapMode = "FlatFace"
sketch4.AttachmentOffset = App.Placement(App.Vector(0, 0, -75), App.Rotation())
sketch4.addGeometry([
    Part.LineSegment(App.Vector(24.91805, 37.988365, 0), App.Vector(5, 6.952928, 0)),
    Part.LineSegment(App.Vector(5, 6.952928, 0), App.Vector(3.257613, 27.634434, 0)),
    Part.LineSegment(App.Vector(3.257613, 27.634434, 0), App.Vector(-25, 28.679942, 0)),
    Part.LineSegment(App.Vector(-25, 28.679942, 0), App.Vector(-8.906888, 53.755529, 0)),
    Part.LineSegment(App.Vector(-8.906888, 53.755529, 0), App.Vector(-34.154558, 69.959082, 0)),
    Part.LineSegment(App.Vector(-34.154558, 69.959082, 0), App.Vector(-31.453966, 74.167027, 0)),
    Part.LineSegment(App.Vector(-31.453966, 74.167027, 0), App.Vector(24.91805, 37.988365, 0)),
], False)
sketch4.addConstraint([
    Sketcher.Constraint("Coincident", 0, 2, 1, 1),
    Sketcher.Constraint("Coincident", 1, 2, 2, 1),
    Sketcher.Constraint("Coincident", 2, 2, 3, 1),
    Sketcher.Constraint("Coincident", 3, 2, 4, 1),
    Sketcher.Constraint("Coincident", 4, 2, 5, 1),
    Sketcher.Constraint("Coincident", 5, 2, 6, 1),
    Sketcher.Constraint("Coincident", 6, 2, 0, 1),
    Sketcher.Constraint("Parallel", 0, 3),
    Sketcher.Constraint("Perpendicular", 3, 4),
    Sketcher.Constraint("Perpendicular", 4, 5),
    Sketcher.Constraint("Perpendicular", 5, 6),
    Sketcher.Constraint("Distance", 4, Q("30 mm")),
    Sketcher.Constraint("Distance", 5, Q("5 mm")),
    Sketcher.Constraint("DistanceX", -1, 1, 0, 2, Q("5 mm")),
    Sketcher.Constraint("DistanceX", 2, 2, -1, 1, Q("25 mm")),
    Sketcher.Constraint("DistanceX", 3, 2, 1, 2, Q("12.164501 mm")),
    Sketcher.Constraint("DistanceY", 0, 2, 3, 2, Q("46.802601 mm")),
    Sketcher.Constraint("DistanceY", 3, 2, 5, 2, Q("20.411498 mm")),
    Sketcher.Constraint("Distance", 0, Q("36.877189 mm")),
    Sketcher.Constraint("Distance", 2, Q("28.276948 mm")),
    Sketcher.Constraint("DistanceY", -1, 1, 3, 2, Q("53.755529 mm")),
])
sketch4.setExpression("Constraints[11]", "Params.sketch4_length")
sketch4.setExpression("Constraints[12]", "Params.sketch4_length2")
pad4 = body.newObject("PartDesign::Pad", "Pad003")
pad4.Profile = sketch4
pad4.setExpression("Length", "Params.pad4_length")

sketch5 = body.newObject("Sketcher::SketchObject", "Sketch004")
sketch5.Placement = App.Placement(App.Vector(0, 21.836604, 34.024845), App.Rotation(App.Vector(1, 0, 0), App.Vector(0, -0.841589015, 0.540118441), App.Vector(0, -0.540118441, -0.841589015), "ZXY"))
sketch5.addGeometry([
    Part.Circle(App.Vector(-50, 56.530291, 0), App.Vector(0, 0, 1), 2.25),
    Part.Circle(App.Vector(50, 56.530291, 0), App.Vector(0, 0, 1), 2.25),
    Part.Circle(App.Vector(0, 56.530291, 0), App.Vector(0, 0, 1), 2.25),
    Part.Circle(App.Vector(50, 46.530291, 0), App.Vector(0, 0, 1), 2.25),
    Part.Circle(App.Vector(-50, 46.530291, 0), App.Vector(0, 0, 1), 2.25),
    Part.Circle(App.Vector(0, 46.530291, 0), App.Vector(0, 0, 1), 2.25),
], False)
sketch5.addConstraint([
    Sketcher.Constraint("Equal", 0, 1),
    Sketcher.Constraint("Equal", 1, 2),
    Sketcher.Constraint("Equal", 2, 3),
    Sketcher.Constraint("Equal", 3, 4),
    Sketcher.Constraint("Equal", 4, 5),
    Sketcher.Constraint("Symmetric", 0, 3, 1, 3, -2),
    Sketcher.Constraint("Symmetric", 3, 3, 4, 3, -2),
    Sketcher.Constraint("PointOnObject", 2, 3, -2),
    Sketcher.Constraint("PointOnObject", 5, 3, -2),
    Sketcher.Constraint("Horizontal", 1, 3, 2, 3),
    Sketcher.Constraint("Horizontal", 4, 3, 5, 3),
    Sketcher.Constraint("Vertical", 1, 3, 3, 3),
    Sketcher.Constraint("Diameter", 0, Q("4.5 mm")),
    Sketcher.Constraint("DistanceX", 0, 3, -1, 1, Q("50 mm")),
    Sketcher.Constraint("DistanceY", 3, 3, 1, 3, Q("10 mm")),
    Sketcher.Constraint("DistanceY", -1, 1, 0, 3, Q("56.530291 mm")),
])
sketch5.setExpression("Constraints[12]", "Params.sketch5_diameter")
pocket1 = body.newObject("PartDesign::Pocket", "Pocket")
pocket1.Profile = sketch5
pocket1.setExpression("Length", "Params.pocket1_length")

doc.recompute()
